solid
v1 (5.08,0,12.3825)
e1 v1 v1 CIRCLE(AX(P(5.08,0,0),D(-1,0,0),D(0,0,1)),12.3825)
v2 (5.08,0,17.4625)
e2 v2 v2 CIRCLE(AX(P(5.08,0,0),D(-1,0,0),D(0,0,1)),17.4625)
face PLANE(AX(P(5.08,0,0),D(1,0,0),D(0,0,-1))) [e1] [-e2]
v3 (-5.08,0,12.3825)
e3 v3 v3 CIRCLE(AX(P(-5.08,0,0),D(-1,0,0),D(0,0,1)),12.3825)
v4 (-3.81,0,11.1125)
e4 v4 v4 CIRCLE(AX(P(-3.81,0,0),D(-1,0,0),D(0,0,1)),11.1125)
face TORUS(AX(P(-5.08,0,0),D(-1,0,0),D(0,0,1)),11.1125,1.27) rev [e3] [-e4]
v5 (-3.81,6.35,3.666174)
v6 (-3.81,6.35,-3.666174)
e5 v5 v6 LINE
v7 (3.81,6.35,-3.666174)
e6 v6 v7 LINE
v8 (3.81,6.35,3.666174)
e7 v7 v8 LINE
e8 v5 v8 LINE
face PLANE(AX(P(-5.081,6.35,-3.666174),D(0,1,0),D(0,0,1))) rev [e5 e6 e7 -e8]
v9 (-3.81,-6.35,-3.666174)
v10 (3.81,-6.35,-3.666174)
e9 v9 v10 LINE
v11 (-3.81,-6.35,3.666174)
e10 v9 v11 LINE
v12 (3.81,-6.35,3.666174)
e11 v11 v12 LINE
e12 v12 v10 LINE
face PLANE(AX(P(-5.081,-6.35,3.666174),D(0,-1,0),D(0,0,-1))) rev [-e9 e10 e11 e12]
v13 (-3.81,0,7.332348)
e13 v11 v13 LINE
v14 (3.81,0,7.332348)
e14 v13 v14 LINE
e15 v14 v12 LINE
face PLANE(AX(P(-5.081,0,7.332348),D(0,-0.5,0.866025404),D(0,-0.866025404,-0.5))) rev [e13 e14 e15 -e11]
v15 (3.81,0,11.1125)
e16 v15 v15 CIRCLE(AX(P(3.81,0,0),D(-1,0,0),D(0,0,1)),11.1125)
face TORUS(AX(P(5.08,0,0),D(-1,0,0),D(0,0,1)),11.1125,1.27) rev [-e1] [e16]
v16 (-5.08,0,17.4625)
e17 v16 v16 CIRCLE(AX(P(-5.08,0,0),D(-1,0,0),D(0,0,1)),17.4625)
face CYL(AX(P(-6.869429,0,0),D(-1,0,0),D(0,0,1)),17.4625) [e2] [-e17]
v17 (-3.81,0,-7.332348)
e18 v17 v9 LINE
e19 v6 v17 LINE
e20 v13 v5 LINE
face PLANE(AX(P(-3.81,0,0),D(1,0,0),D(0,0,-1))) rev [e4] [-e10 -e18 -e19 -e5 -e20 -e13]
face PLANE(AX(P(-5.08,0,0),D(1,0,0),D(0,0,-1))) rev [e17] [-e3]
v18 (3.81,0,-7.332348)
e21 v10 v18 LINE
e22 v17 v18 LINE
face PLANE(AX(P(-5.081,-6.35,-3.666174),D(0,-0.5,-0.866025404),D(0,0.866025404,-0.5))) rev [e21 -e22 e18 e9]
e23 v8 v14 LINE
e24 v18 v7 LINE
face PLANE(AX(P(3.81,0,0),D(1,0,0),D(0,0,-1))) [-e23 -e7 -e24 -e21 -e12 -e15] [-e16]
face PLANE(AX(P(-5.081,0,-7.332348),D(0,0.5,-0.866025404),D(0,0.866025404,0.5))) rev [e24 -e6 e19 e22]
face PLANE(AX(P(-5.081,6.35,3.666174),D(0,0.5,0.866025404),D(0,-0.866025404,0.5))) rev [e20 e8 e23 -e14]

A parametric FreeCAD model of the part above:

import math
import FreeCAD as App
import Part
import Sketcher

V = App.Vector
Q = App.Units.Quantity

doc = App.newDocument("Part")
body = doc.addObject("PartDesign::Body", "Body")

# Sketch on XY plane
sketch1 = doc.addObject("Sketcher::SketchObject", "Sketch")
body.addObject(sketch1)
sketch1.AttachmentSupport = (doc.XY_Plane, [""])
sketch1.MapMode = "FlatFace"
sketch1.addGeometry([
    Part.LineSegment(V(-5.1, 17.5, 0), V(-5.1, 12.4, 0)),  # 0
    Part.ArcOfCircle(Part.Circle(V(-5.1, 11.1, 0), V(0, 0, 1), 1.3), math.radians(0), math.radians(90)),  # 1
    Part.LineSegment(V(-3.8, 11.1, 0), V(-3.8, 0, 0)),  # 2
    Part.LineSegment(V(-3.8, 0, 0), V(3.8, 0, 0)),  # 3
    Part.LineSegment(V(3.8, 0, 0), V(3.8, 11.1, 0)),  # 4
    Part.ArcOfCircle(Part.Circle(V(5.1, 11.1, 0), V(0, 0, 1), 1.3), math.radians(90), math.radians(180)),  # 5
    Part.LineSegment(V(5.1, 12.4, 0), V(5.1, 17.5, 0)),  # 6
    Part.LineSegment(V(5.1, 17.5, 0), V(-5.1, 17.5, 0)),  # 7
], False)
sketch1.addConstraint([
    Sketcher.Constraint("Coincident", 0, 2, 1, 2),
    Sketcher.Constraint("Tangent", 1, 1, 2, 1),
    Sketcher.Constraint("Coincident", 2, 2, 3, 1),
    Sketcher.Constraint("Coincident", 3, 2, 4, 1),
    Sketcher.Constraint("Tangent", 4, 2, 5, 2),
    Sketcher.Constraint("Coincident", 5, 1, 6, 1),
    Sketcher.Constraint("Coincident", 6, 2, 7, 1),
    Sketcher.Constraint("Coincident", 7, 2, 0, 1),
    Sketcher.Constraint("Vertical", 0),
    Sketcher.Constraint("Vertical", 2),
    Sketcher.Constraint("Horizontal", 3),
    Sketcher.Constraint("Vertical", 4),
    Sketcher.Constraint("Vertical", 6),
    Sketcher.Constraint("Horizontal", 7),
    Sketcher.Constraint("Equal", 1, 5),
    Sketcher.Constraint("Symmetric", 2, 2, 3, 2, -1, 1),
    Sketcher.Constraint("Symmetric", 0, 2, 5, 1, -2),
    Sketcher.Constraint("Vertical", 1, 3, 0, 2),
    Sketcher.Constraint("Radius", 1, Q("0.05 in")),
    Sketcher.Constraint("DistanceX", 3, 1, 3, 2, Q("0.3 in")),
    Sketcher.Constraint("DistanceY", 0, 2, 0, 1, Q("0.2 in")),
    Sketcher.Constraint("DistanceY", 2, 2, 2, 1, Q("0.4375 in")),
])
revolution = doc.addObject("PartDesign::Revolution", "Revolution")
body.addObject(revolution)
revolution.Profile = sketch1
revolution.ReferenceAxis = (sketch1, ["H_Axis"])
revolution.Angle = 360

# Sketch on YZ plane
sketch2 = doc.addObject("Sketcher::SketchObject", "Sketch001")
body.addObject(sketch2)
sketch2.AttachmentSupport = (doc.YZ_Plane, [""])
sketch2.MapMode = "FlatFace"
sketch2.AttachmentOffset = App.Placement(V(0, 0, 0.15 * 25.4), App.Rotation())
sketch2.addGeometry([
    Part.LineSegment(V(0, -7, 0), V(6, -4, 0)),  # 0
    Part.LineSegment(V(6, -4, 0), V(6, 4, 0)),  # 1
    Part.LineSegment(V(6, 4, 0), V(0, 7, 0)),  # 2
    Part.LineSegment(V(0, 7, 0), V(-6, 4, 0)),  # 3
    Part.LineSegment(V(-6, 4, 0), V(-6, -4, 0)),  # 4
    Part.LineSegment(V(-6, -4, 0), V(0, -7, 0)),  # 5
], False)
sketch2.addConstraint([
    Sketcher.Constraint("Coincident", 0, 2, 1, 1),
    Sketcher.Constraint("Coincident", 1, 2, 2, 1),
    Sketcher.Constraint("Coincident", 2, 2, 3, 1),
    Sketcher.Constraint("Coincident", 3, 2, 4, 1),
    Sketcher.Constraint("Coincident", 4, 2, 5, 1),
    Sketcher.Constraint("Coincident", 5, 2, 0, 1),
    Sketcher.Constraint("Vertical", 1),
    Sketcher.Constraint("Vertical", 4),
    Sketcher.Constraint("Symmetric", 0, 2, 3, 2, -1, 1),
    Sketcher.Constraint("Symmetric", 2, 2, 5, 2, -1, 1),
    Sketcher.Constraint("PointOnObject", 2, 2, -2),
    Sketcher.Constraint("Parallel", 2, 5),
    Sketcher.Constraint("Horizontal", 1, 2, 3, 2),
    Sketcher.Constraint("Angle", 0, Q("30 deg")),
    Sketcher.Constraint("DistanceX", 3, 2, 1, 2, Q("0.5 in")),
    Sketcher.Constraint("DistanceY", 1, 1, 1, 2, 7.332348),
])
pocket1 = doc.addObject("PartDesign::Pocket", "Pocket")
body.addObject(pocket1)
pocket1.Profile = sketch2
pocket1.Type = "UpToFirst"

doc.recompute()
